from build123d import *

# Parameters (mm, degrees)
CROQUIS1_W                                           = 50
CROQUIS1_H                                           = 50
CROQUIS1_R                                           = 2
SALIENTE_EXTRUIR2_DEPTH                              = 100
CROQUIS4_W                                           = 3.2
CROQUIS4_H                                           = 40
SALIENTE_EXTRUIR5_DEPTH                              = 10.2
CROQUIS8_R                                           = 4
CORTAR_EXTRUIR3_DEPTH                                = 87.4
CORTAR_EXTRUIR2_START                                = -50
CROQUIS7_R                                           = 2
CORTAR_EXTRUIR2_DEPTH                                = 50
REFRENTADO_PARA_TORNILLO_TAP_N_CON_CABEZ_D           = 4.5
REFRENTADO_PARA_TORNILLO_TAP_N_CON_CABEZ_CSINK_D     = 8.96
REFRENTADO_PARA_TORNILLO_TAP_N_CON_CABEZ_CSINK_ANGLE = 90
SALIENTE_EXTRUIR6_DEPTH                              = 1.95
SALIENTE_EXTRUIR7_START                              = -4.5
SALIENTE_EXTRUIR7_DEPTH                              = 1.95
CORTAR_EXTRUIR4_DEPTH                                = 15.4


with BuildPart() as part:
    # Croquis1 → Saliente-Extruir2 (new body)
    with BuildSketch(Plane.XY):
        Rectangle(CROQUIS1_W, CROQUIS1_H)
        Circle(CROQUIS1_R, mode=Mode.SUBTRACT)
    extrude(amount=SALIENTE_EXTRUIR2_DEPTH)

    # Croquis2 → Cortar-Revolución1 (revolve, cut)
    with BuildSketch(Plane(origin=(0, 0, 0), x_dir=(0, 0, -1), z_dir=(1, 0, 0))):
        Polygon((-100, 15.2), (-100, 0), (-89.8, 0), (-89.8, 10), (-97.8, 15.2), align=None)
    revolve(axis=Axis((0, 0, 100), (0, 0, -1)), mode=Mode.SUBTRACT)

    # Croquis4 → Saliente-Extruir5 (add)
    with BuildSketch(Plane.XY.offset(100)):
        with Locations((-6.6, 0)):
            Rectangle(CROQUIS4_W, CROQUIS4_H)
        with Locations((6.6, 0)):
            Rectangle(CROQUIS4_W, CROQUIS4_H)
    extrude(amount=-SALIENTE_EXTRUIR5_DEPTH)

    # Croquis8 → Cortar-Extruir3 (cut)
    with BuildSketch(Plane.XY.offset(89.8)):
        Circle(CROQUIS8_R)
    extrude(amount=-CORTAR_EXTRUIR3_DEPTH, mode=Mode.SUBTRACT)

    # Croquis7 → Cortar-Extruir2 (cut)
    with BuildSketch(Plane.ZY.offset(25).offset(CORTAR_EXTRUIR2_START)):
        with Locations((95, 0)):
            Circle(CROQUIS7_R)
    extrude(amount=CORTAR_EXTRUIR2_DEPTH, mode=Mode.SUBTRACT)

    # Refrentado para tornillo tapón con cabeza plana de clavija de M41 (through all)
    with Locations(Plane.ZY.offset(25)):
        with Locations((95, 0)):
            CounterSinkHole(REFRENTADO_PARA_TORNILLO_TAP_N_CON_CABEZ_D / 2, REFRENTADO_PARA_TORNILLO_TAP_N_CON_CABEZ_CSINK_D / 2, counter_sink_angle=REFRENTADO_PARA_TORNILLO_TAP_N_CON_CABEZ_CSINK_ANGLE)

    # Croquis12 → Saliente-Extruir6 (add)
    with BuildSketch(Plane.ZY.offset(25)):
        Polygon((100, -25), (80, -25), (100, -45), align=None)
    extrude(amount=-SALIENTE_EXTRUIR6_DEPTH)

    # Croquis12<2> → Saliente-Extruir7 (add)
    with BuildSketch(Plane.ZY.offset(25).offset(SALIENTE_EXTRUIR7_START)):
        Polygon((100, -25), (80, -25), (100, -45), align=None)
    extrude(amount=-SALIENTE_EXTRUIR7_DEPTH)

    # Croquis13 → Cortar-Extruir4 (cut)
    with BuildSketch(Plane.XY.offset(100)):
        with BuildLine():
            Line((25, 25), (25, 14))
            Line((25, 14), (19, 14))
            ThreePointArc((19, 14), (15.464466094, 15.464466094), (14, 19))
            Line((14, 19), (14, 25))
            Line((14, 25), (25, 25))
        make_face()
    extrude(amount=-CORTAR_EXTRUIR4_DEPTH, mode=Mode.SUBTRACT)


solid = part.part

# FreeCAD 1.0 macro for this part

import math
import FreeCAD as App
import Part
import Sketcher
Q = App.Units.Quantity

doc = App.newDocument("Part")
params = doc.addObject("Spreadsheet::Sheet", "Params")
for row, (alias, value) in enumerate([
    ("sketch1_diameter", "4 mm"),
    ("sketch1_width", "50 mm"),
    ("pad1_length", "100 mm"),
    ("sketch2_width", "10 mm"),
    ("sketch2_width2", "15.2 mm"),
    ("sketch2_height", "10.2 mm"),
    ("sketch2_height2", "2.2 mm"),
    ("groove_angle", "360 deg"),
    ("sketch3_height", "40 mm"),
    ("sketch3_width", "3.2 mm"),
    ("pad2_length", "10.2 mm"),
    ("sketch4_diameter", "8 mm"),
    ("pocket1_length", "87.4 mm"),
    ("sketch5_diameter", "4 mm"),
    ("pocket2_length", "50 mm"),
    ("sketch6_diameter", "4.5 mm"),
    ("hole_diameter", "4.5 mm"),
    ("hole_csink_diameter", "8.96 mm"),
    ("sketch7_width", "20 mm"),
    ("pad3_length", "1.95 mm"),
    ("sketch8_width", "20 mm"),
    ("pad4_length", "1.95 mm"),
    ("sketch9_radius", "5 mm"),
    ("sketch9_width", "11 mm"),
    ("pocket3_length", "15.4 mm"),
], start=1):
    params.set(f"A{row}", alias)
    params.set(f"B{row}", "=" + value)
    params.setAlias(f"B{row}", alias)

body = doc.addObject("PartDesign::Body", "Body")

# Sketch on XY plane
sketch1 = doc.addObject("Sketcher::SketchObject", "Sketch")
body.addObject(sketch1)
sketch1.AttachmentSupport = (doc.XY_Plane, [""])
sketch1.MapMode = "FlatFace"
sketch1.addGeometry(Part.LineSegment(App.Vector(-25, 25, 0), App.Vector(-25, -25, 0)), False)
sketch1.addGeometry(Part.LineSegment(App.Vector(-25, -25, 0), App.Vector(25, -25, 0)), False)
sketch1.addGeometry(Part.LineSegment(App.Vector(25, -25, 0), App.Vector(25, 25, 0)), False)
sketch1.addGeometry(Part.LineSegment(App.Vector(25, 25, 0), App.Vector(-25, 25, 0)), False)
sketch1.addGeometry(Part.Circle(App.Vector(0, 0, 0), App.Vector(0, 0, 1), 2), False)
sketch1.addConstraint(Sketcher.Constraint("Coincident", 0, 2, 1, 1))
sketch1.addConstraint(Sketcher.Constraint("Coincident", 1, 2, 2, 1))
sketch1.addConstraint(Sketcher.Constraint("Coincident", 2, 2, 3, 1))
sketch1.addConstraint(Sketcher.Constraint("Coincident", 3, 2, 0, 1))
sketch1.addConstraint(Sketcher.Constraint("Vertical", 0))
sketch1.addConstraint(Sketcher.Constraint("Horizontal", 1))
sketch1.addConstraint(Sketcher.Constraint("Vertical", 2))
sketch1.addConstraint(Sketcher.Constraint("Horizontal", 3))
sketch1.addConstraint(Sketcher.Constraint("Coincident", 4, 3, -1, 1))
sketch1.addConstraint(Sketcher.Constraint("Symmetric", 0, 2, 2, 2, -1, 1))
sketch1.addConstraint(Sketcher.Constraint("Equal", 3, 0))
sketch1.addConstraint(Sketcher.Constraint("Diameter", 4, Q("4 mm")))
sketch1.addConstraint(Sketcher.Constraint("DistanceX", 1, 1, 1, 2, Q("50 mm")))
sketch1.setExpression("Constraints[11]", "Params.sketch1_diameter")
sketch1.setExpression("Constraints[12]", "Params.sketch1_width")
pad1 = doc.addObject("PartDesign::Pad", "Pad")
body.addObject(pad1)
pad1.Profile = sketch1
pad1.setExpression("Length", "Params.pad1_length")

# Sketch on YZ plane
sketch2 = doc.addObject("Sketcher::SketchObject", "Sketch001")
body.addObject(sketch2)
sketch2.AttachmentSupport = (doc.YZ_Plane, [""])
sketch2.MapMode = "FlatFace"
sketch2.addGeometry(Part.LineSegment(App.Vector(15.2, 100, 0), App.Vector(0, 100, 0)), False)
sketch2.addGeometry(Part.LineSegment(App.Vector(0, 100, 0), App.Vector(0, 89.8, 0)), False)
sketch2.addGeometry(Part.LineSegment(App.Vector(0, 89.8, 0), App.Vector(10, 89.8, 0)), False)
sketch2.addGeometry(Part.LineSegment(App.Vector(10, 89.8, 0), App.Vector(15.2, 97.8, 0)), False)
sketch2.addGeometry(Part.LineSegment(App.Vector(15.2, 97.8, 0), App.Vector(15.2, 100, 0)), False)
sketch2.addConstraint(Sketcher.Constraint("Coincident", 0, 2, 1, 1))
sketch2.addConstraint(Sketcher.Constraint("Coincident", 1, 2, 2, 1))
sketch2.addConstraint(Sketcher.Constraint("Coincident", 2, 2, 3, 1))
sketch2.addConstraint(Sketcher.Constraint("Coincident", 3, 2, 4, 1))
sketch2.addConstraint(Sketcher.Constraint("Coincident", 4, 2, 0, 1))
sketch2.addConstraint(Sketcher.Constraint("Horizontal", 0))
sketch2.addConstraint(Sketcher.Constraint("Vertical", 1))
sketch2.addConstraint(Sketcher.Constraint("Horizontal", 2))
sketch2.addConstraint(Sketcher.Constraint("Vertical", 4))
sketch2.addConstraint(Sketcher.Constraint("PointOnObject", 0, 2, -2))
sketch2.addConstraint(Sketcher.Constraint("DistanceX", 2, 1, 2, 2, Q("10 mm")))
sketch2.addConstraint(Sketcher.Constraint("DistanceX", 0, 2, 0, 1, Q("15.2 mm")))
sketch2.addConstraint(Sketcher.Constraint("DistanceY", 1, 2, 1, 1, Q("10.2 mm")))
sketch2.addConstraint(Sketcher.Constraint("DistanceY", 4, 1, 4, 2, Q("2.2 mm")))
sketch2.addConstraint(Sketcher.Constraint("DistanceY", -1, 1, 0, 2, Q("100 mm")))
sketch2.setExpression("Constraints[10]", "Params.sketch2_width")
sketch2.setExpression("Constraints[11]", "Params.sketch2_width2")
sketch2.setExpression("Constraints[12]", "Params.sketch2_height")
sketch2.setExpression("Constraints[13]", "Params.sketch2_height2")
groove = doc.addObject("PartDesign::Groove", "Groove")
body.addObject(groove)
groove.Profile = sketch2
groove.ReferenceAxis = (sketch2, ["V_Axis"])
groove.setExpression("Angle", "Params.groove_angle")

# Sketch on XY plane
sketch3 = doc.addObject("Sketcher::SketchObject", "Sketch002")
body.addObject(sketch3)
sketch3.AttachmentSupport = (doc.XY_Plane, [""])
sketch3.MapMode = "FlatFace"
sketch3.AttachmentOffset = App.Placement(App.Vector(0, 0, 100), App.Rotation())
sketch3.addGeometry(Part.LineSegment(App.Vector(-8.2, 20, 0), App.Vector(-8.2, -20, 0)), False)
sketch3.addGeometry(Part.LineSegment(App.Vector(-8.2, -20, 0), App.Vector(-5, -20, 0)), False)
sketch3.addGeometry(Part.LineSegment(App.Vector(-5, -20, 0), App.Vector(-5, 20, 0)), False)
sketch3.addGeometry(Part.LineSegment(App.Vector(-5, 20, 0), App.Vector(-8.2, 20, 0)), False)
sketch3.addGeometry(Part.LineSegment(App.Vector(5, 20, 0), App.Vector(5, -20, 0)), False)
sketch3.addGeometry(Part.LineSegment(App.Vector(5, -20, 0), App.Vector(8.2, -20, 0)), False)
sketch3.addGeometry(Part.LineSegment(App.Vector(8.2, -20, 0), App.Vector(8.2, 20, 0)), False)
sketch3.addGeometry(Part.LineSegment(App.Vector(8.2, 20, 0), App.Vector(5, 20, 0)), False)
sketch3.addConstraint(Sketcher.Constraint("Coincident", 0, 2, 1, 1))
sketch3.addConstraint(Sketcher.Constraint("Coincident", 1, 2, 2, 1))
sketch3.addConstraint(Sketcher.Constraint("Coincident", 2, 2, 3, 1))
sketch3.addConstraint(Sketcher.Constraint("Coincident", 3, 2, 0, 1))
sketch3.addConstraint(Sketcher.Constraint("Coincident", 4, 2, 5, 1))
sketch3.addConstraint(Sketcher.Constraint("Coincident", 5, 2, 6, 1))
sketch3.addConstraint(Sketcher.Constraint("Coincident", 6, 2, 7, 1))
sketch3.addConstraint(Sketcher.Constraint("Coincident", 7, 2, 4, 1))
sketch3.addConstraint(Sketcher.Constraint("Vertical", 0))
sketch3.addConstraint(Sketcher.Constraint("Horizontal", 1))
sketch3.addConstraint(Sketcher.Constraint("Vertical", 2))
sketch3.addConstraint(Sketcher.Constraint("Horizontal", 3))
sketch3.addConstraint(Sketcher.Constraint("Vertical", 4))
sketch3.addConstraint(Sketcher.Constraint("Horizontal", 5))
sketch3.addConstraint(Sketcher.Constraint("Vertical", 6))
sketch3.addConstraint(Sketcher.Constraint("Horizontal", 7))
sketch3.addConstraint(Sketcher.Constraint("Symmetric", 2, 2, 4, 2, -1, 1))
sketch3.addConstraint(Sketcher.Constraint("Symmetric", 0, 2, 6, 2, -1, 1))
sketch3.addConstraint(Sketcher.Constraint("Horizontal", 1, 2, 4, 2))
sketch3.addConstraint(Sketcher.Constraint("DistanceY", 0, 2, 0, 1, Q("40 mm")))
sketch3.addConstraint(Sketcher.Constraint("DistanceX", 1, 1, 1, 2, Q("3.2 mm")))
sketch3.addConstraint(Sketcher.Constraint("DistanceX", 1, 2, -1, 1, Q("5 mm")))
sketch3.setExpression("Constraints[19]", "Params.sketch3_height")
sketch3.setExpression("Constraints[20]", "Params.sketch3_width")
pad2 = doc.addObject("PartDesign::Pad", "Pad001")
body.addObject(pad2)
pad2.Profile = sketch3
pad2.setExpression("Length", "Params.pad2_length")
pad2.Reversed = True

# Sketch on XY plane
sketch4 = doc.addObject("Sketcher::SketchObject", "Sketch003")
body.addObject(sketch4)
sketch4.AttachmentSupport = (doc.XY_Plane, [""])
sketch4.MapMode = "FlatFace"
sketch4.AttachmentOffset = App.Placement(App.Vector(0, 0, 89.8), App.Rotation())
sketch4.addGeometry(Part.Circle(App.Vector(0, 0, 0), App.Vector(0, 0, 1), 4), False)
sketch4.addConstraint(Sketcher.Constraint("Coincident", 0, 3, -1, 1))
sketch4.addConstraint(Sketcher.Constraint("Diameter", 0, Q("8 mm")))
sketch4.setExpression("Constraints[1]", "Params.sketch4_diameter")
pocket1 = doc.addObject("PartDesign::Pocket", "Pocket")
body.addObject(pocket1)
pocket1.Profile = sketch4
pocket1.setExpression("Length", "Params.pocket1_length")

# Sketch on YZ plane
sketch5 = doc.addObject("Sketcher::SketchObject", "Sketch004")
body.addObject(sketch5)
sketch5.AttachmentSupport = (doc.YZ_Plane, [""])
sketch5.MapMode = "FlatFace"
sketch5.AttachmentOffset = App.Placement(App.Vector(0, 0, 25), App.Rotation())
sketch5.addGeometry(Part.Circle(App.Vector(0, 95, 0), App.Vector(0, 0, 1), 2), False)
sketch5.addConstraint(Sketcher.Constraint("PointOnObject", 0, 3, -2))
sketch5.addConstraint(Sketcher.Constraint("Diameter", 0, Q("4 mm")))
sketch5.addConstraint(Sketcher.Constraint("DistanceY", -1, 1, 0, 3, Q("95 mm")))
sketch5.setExpression("Constraints[1]", "Params.sketch5_diameter")
pocket2 = doc.addObject("PartDesign::Pocket", "Pocket001")
body.addObject(pocket2)
pocket2.Profile = sketch5
pocket2.setExpression("Length", "Params.pocket2_length")

# Sketch on YZ plane
sketch6 = doc.addObject("Sketcher::SketchObject", "Sketch005")
body.addObject(sketch6)
sketch6.AttachmentSupport = (doc.YZ_Plane, [""])
sketch6.MapMode = "FlatFace"
sketch6.AttachmentOffset = App.Placement(App.Vector(0, 0, -25), App.Rotation())
sketch6.addGeometry(Part.Circle(App.Vector(0, 95, 0), App.Vector(0, 0, 1), 2.2), False)
sketch6.addConstraint(Sketcher.Constraint("PointOnObject", 0, 3, -2))
sketch6.addConstraint(Sketcher.Constraint("Diameter", 0, Q("4.5 mm")))
sketch6.addConstraint(Sketcher.Constraint("DistanceY", -1, 1, 0, 3, Q("95 mm")))
sketch6.setExpression("Constraints[1]", "Params.sketch6_diameter")
doc.recompute()
hole = doc.addObject("PartDesign::Hole", "Hole")
body.addObject(hole)
hole.Profile = sketch6
hole.ThreadType = "None"
hole.setExpression("Diameter", "Params.hole_diameter")
hole.DepthType = "ThroughAll"
hole.HoleCutType = "Countersink"
hole.setExpression("HoleCutDiameter", "Params.hole_csink_diameter")
hole.HoleCutCountersinkAngle = 90
hole.Reversed = True

# Sketch on YZ plane
sketch7 = doc.addObject("Sketcher::SketchObject", "Sketch006")
body.addObject(sketch7)
sketch7.AttachmentSupport = (doc.YZ_Plane, [""])
sketch7.MapMode = "FlatFace"
sketch7.AttachmentOffset = App.Placement(App.Vector(0, 0, -25), App.Rotation())
sketch7.addGeometry(Part.LineSegment(App.Vector(-25, 100, 0), App.Vector(-25, 80, 0)), False)
sketch7.addGeometry(Part.LineSegment(App.Vector(-25, 80, 0), App.Vector(-45, 100, 0)), False)
sketch7.addGeometry(Part.LineSegment(App.Vector(-45, 100, 0), App.Vector(-25, 100, 0)), False)
sketch7.addConstraint(Sketcher.Constraint("Coincident", 0, 2, 1, 1))
sketch7.addConstraint(Sketcher.Constraint("Coincident", 1, 2, 2, 1))
sketch7.addConstraint(Sketcher.Constraint("Coincident", 2, 2, 0, 1))
sketch7.addConstraint(Sketcher.Constraint("Vertical", 0))
sketch7.addConstraint(Sketcher.Constraint("Horizontal", 2))
sketch7.addConstraint(Sketcher.Constraint("Equal", 2, 0))
sketch7.addConstraint(Sketcher.Constraint("DistanceX", 2, 1, 2, 2, Q("20 mm")))
sketch7.addConstraint(Sketcher.Constraint("DistanceX", 0, 2, -1, 1, Q("25 mm")))
sketch7.addConstraint(Sketcher.Constraint("DistanceY", -1, 1, 0, 2, Q("80 mm")))
sketch7.setExpression("Constraints[6]", "Params.sketch7_width")
pad3 = doc.addObject("PartDesign::Pad", "Pad002")
body.addObject(pad3)
pad3.Profile = sketch7
pad3.setExpression("Length", "Params.pad3_length")

# Sketch on YZ plane
sketch8 = doc.addObject("Sketcher::SketchObject", "Sketch007")
body.addObject(sketch8)
sketch8.AttachmentSupport = (doc.YZ_Plane, [""])
sketch8.MapMode = "FlatFace"
sketch8.AttachmentOffset = App.Placement(App.Vector(0, 0, -20.5), App.Rotation())
sketch8.addGeometry(Part.LineSegment(App.Vector(-25, 100, 0), App.Vector(-25, 80, 0)), False)
sketch8.addGeometry(Part.LineSegment(App.Vector(-25, 80, 0), App.Vector(-45, 100, 0)), False)
sketch8.addGeometry(Part.LineSegment(App.Vector(-45, 100, 0), App.Vector(-25, 100, 0)), False)
sketch8.addConstraint(Sketcher.Constraint("Coincident", 0, 2, 1, 1))
sketch8.addConstraint(Sketcher.Constraint("Coincident", 1, 2, 2, 1))
sketch8.addConstraint(Sketcher.Constraint("Coincident", 2, 2, 0, 1))
sketch8.addConstraint(Sketcher.Constraint("Vertical", 0))
sketch8.addConstraint(Sketcher.Constraint("Horizontal", 2))
sketch8.addConstraint(Sketcher.Constraint("Equal", 2, 0))
sketch8.addConstraint(Sketcher.Constraint("DistanceX", 2, 1, 2, 2, Q("20 mm")))
sketch8.addConstraint(Sketcher.Constraint("DistanceX", 0, 2, -1, 1, Q("25 mm")))
sketch8.addConstraint(Sketcher.Constraint("DistanceY", -1, 1, 0, 2, Q("80 mm")))
sketch8.setExpression("Constraints[6]", "Params.sketch8_width")
pad4 = doc.addObject("PartDesign::Pad", "Pad003")
body.addObject(pad4)
pad4.Profile = sketch8
pad4.setExpression("Length", "Params.pad4_length")

# Sketch on XY plane
sketch9 = doc.addObject("Sketcher::SketchObject", "Sketch008")
body.addObject(sketch9)
sketch9.AttachmentSupport = (doc.XY_Plane, [""])
sketch9.MapMode = "FlatFace"
sketch9.AttachmentOffset = App.Placement(App.Vector(0, 0, 100), App.Rotation())
sketch9.addGeometry(Part.LineSegment(App.Vector(25, 14, 0), App.Vector(25, 25, 0)), False)
sketch9.addGeometry(Part.LineSegment(App.Vector(25, 25, 0), App.Vector(14, 25, 0)), False)
sketch9.addGeometry(Part.LineSegment(App.Vector(14, 25, 0), App.Vector(14, 19, 0)), False)
sketch9.addGeometry(Part.ArcOfCircle(Part.Circle(App.Vector(19, 19, 0), App.Vector(0, 0, 1), 5), math.radians(180), math.radians(270)), False)
sketch9.addGeometry(Part.LineSegment(App.Vector(19, 14, 0), App.Vector(25, 14, 0)), False)
sketch9.addConstraint(Sketcher.Constraint("Coincident", 0, 2, 1, 1))
sketch9.addConstraint(Sketcher.Constraint("Coincident", 1, 2, 2, 1))
sketch9.addConstraint(Sketcher.Constraint("Tangent", 2, 2, 3, 1))
sketch9.addConstraint(Sketcher.Constraint("Tangent", 3, 2, 4, 1))
sketch9.addConstraint(Sketcher.Constraint("Coincident", 4, 2, 0, 1))
sketch9.addConstraint(Sketcher.Constraint("Vertical", 0))
sketch9.addConstraint(Sketcher.Constraint("Horizontal", 1))
sketch9.addConstraint(Sketcher.Constraint("Vertical", 2))
sketch9.addConstraint(Sketcher.Constraint("Horizontal", 4))
sketch9.addConstraint(Sketcher.Constraint("Equal", 1, 0))
sketch9.addConstraint(Sketcher.Constraint("Radius", 3, Q("5 mm")))
sketch9.addConstraint(Sketcher.Constraint("DistanceX", 1, 2, 1, 1, Q("11 mm")))
sketch9.addConstraint(Sketcher.Constraint("DistanceX", -1, 1, 3, 3, Q("19 mm")))
sketch9.addConstraint(Sketcher.Constraint("DistanceY", -1, 1, 3, 3, Q("19 mm")))
sketch9.setExpression("Constraints[10]", "Params.sketch9_radius")
sketch9.setExpression("Constraints[11]", "Params.sketch9_width")
pocket3 = doc.addObject("PartDesign::Pocket", "Pocket002")
body.addObject(pocket3)
pocket3.Profile = sketch9
pocket3.setExpression("Length", "Params.pocket3_length")

doc.recompute()
